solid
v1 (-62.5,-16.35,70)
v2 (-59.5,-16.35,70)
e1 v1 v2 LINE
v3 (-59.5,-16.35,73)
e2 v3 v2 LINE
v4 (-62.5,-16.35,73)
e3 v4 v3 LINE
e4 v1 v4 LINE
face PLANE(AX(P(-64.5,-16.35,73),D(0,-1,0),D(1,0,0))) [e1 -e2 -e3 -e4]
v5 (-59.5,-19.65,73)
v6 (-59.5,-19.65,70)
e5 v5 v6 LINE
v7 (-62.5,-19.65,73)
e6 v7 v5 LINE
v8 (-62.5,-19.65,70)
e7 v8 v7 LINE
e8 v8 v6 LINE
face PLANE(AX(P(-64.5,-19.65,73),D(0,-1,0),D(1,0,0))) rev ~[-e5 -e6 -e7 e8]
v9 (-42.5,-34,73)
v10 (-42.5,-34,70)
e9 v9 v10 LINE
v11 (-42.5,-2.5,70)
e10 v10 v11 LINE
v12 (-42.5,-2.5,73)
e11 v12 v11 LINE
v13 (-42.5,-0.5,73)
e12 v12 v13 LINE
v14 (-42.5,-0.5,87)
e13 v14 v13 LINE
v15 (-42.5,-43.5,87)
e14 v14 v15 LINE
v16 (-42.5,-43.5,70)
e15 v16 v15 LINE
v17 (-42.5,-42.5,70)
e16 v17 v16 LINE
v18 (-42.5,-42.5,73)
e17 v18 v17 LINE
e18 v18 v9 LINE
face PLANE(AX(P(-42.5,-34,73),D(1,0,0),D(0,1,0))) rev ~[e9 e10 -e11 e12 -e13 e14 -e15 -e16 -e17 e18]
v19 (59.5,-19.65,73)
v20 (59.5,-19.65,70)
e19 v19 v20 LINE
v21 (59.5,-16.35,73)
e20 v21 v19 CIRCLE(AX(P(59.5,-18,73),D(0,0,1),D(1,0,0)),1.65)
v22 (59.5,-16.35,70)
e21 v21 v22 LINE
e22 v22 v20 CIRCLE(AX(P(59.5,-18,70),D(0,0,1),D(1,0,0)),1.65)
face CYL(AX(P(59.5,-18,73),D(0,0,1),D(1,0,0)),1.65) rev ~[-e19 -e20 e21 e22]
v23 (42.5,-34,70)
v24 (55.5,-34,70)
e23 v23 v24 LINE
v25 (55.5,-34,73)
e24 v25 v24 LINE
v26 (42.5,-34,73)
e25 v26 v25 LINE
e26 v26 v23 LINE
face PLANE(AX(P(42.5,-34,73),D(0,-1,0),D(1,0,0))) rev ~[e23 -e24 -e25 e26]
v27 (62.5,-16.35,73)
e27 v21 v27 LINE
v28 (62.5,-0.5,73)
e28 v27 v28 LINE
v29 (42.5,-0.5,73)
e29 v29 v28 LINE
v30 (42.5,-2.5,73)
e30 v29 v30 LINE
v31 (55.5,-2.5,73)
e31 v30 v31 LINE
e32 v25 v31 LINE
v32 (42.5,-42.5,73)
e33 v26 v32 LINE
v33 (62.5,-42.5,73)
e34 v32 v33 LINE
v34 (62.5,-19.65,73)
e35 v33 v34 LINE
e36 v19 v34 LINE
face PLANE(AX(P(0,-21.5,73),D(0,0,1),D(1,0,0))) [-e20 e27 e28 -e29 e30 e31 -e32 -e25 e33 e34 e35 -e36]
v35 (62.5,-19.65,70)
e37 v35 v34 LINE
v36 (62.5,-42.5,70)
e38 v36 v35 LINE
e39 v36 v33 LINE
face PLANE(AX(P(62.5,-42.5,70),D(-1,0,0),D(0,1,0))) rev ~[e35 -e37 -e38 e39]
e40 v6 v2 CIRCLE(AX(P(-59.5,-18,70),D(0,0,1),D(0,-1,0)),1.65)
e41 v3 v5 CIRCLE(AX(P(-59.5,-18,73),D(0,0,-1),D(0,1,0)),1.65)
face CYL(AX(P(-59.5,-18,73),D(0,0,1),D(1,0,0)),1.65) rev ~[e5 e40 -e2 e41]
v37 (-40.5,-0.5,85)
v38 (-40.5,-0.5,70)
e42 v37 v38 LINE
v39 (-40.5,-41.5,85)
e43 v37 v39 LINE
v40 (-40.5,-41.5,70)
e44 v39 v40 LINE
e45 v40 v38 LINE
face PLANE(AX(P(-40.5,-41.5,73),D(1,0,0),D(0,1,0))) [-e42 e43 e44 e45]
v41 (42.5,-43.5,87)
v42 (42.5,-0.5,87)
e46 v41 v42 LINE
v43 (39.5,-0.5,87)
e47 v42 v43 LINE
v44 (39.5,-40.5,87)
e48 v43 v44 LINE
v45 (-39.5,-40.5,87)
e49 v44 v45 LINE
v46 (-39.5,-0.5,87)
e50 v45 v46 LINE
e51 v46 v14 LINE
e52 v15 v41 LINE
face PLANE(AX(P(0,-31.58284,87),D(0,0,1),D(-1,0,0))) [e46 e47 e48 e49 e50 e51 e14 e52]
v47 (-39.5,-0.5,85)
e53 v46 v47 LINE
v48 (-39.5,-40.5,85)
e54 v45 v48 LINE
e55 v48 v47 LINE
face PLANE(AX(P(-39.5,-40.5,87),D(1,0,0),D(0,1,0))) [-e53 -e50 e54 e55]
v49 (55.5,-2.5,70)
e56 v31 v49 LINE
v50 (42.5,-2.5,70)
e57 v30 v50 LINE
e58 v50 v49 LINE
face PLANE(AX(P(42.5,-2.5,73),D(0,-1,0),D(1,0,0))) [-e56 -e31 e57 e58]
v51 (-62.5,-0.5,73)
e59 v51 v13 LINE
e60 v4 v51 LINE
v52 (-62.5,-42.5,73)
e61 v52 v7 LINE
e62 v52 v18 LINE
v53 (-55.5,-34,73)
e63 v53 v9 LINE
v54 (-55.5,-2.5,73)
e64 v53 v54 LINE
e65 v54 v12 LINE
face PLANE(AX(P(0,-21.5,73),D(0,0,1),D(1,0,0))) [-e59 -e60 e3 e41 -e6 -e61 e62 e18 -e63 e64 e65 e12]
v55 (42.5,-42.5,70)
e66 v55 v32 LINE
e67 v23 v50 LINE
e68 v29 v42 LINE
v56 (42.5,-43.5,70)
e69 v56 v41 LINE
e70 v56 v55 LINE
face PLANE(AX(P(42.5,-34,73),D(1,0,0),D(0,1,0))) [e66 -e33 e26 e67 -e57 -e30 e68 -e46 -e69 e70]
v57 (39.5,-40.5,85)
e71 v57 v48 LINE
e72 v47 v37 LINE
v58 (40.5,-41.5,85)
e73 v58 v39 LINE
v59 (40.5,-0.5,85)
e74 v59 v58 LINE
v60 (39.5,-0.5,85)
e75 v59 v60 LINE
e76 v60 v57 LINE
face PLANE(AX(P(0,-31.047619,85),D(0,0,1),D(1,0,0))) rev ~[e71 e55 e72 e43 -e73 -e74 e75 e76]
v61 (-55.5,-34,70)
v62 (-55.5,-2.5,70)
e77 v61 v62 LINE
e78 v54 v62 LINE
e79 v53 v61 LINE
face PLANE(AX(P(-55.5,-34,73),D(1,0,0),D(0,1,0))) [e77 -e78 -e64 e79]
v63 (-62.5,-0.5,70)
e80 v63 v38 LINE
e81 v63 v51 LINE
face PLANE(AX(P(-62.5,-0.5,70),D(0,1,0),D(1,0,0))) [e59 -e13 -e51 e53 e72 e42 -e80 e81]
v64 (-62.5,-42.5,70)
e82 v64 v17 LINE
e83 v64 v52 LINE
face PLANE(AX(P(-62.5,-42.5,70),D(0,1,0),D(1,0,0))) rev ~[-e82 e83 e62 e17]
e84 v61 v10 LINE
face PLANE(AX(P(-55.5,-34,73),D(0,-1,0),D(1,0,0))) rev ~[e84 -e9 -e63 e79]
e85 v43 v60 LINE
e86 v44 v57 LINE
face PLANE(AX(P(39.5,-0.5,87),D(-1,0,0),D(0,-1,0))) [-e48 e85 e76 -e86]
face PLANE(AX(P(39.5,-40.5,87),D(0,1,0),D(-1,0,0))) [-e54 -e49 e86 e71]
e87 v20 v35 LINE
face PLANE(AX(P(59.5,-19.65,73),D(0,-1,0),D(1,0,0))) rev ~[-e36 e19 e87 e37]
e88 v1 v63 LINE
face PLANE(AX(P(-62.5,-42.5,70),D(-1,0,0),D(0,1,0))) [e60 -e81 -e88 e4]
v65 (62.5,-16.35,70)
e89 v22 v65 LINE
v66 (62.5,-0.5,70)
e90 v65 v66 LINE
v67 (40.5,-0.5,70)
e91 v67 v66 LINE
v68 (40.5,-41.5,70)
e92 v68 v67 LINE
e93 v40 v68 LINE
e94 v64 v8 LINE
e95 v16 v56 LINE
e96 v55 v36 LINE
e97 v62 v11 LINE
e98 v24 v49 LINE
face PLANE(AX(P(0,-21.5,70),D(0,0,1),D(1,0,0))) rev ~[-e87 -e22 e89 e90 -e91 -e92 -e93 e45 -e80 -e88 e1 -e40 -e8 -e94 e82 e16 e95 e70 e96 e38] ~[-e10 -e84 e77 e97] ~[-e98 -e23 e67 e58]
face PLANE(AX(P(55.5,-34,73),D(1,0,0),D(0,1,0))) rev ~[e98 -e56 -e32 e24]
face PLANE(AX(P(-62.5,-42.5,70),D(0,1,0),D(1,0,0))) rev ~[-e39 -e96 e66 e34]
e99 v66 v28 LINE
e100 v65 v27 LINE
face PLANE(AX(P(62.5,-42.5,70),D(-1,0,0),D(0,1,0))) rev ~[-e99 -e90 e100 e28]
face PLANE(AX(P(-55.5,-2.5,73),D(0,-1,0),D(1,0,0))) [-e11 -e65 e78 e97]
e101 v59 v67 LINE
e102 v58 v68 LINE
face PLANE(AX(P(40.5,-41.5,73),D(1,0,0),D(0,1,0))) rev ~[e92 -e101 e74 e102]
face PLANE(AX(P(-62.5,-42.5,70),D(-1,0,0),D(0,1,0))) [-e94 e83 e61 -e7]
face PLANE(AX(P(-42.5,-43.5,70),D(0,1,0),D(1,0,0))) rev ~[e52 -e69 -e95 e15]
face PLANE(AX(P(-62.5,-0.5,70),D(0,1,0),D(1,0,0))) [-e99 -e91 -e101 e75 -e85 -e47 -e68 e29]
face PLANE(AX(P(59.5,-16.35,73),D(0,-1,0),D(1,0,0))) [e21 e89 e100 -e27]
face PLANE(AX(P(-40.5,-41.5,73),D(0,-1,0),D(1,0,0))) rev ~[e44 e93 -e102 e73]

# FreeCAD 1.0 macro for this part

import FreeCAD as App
import Part
import Sketcher
Q = App.Units.Quantity

doc = App.newDocument("Part")
body = doc.addObject("PartDesign::Body", "Body")

# Sketch on XY plane
sketch1 = body.newObject("Sketcher::SketchObject", "Sketch")
sketch1.AttachmentSupport = (doc.getObject("XY_Plane"), [""])
sketch1.MapMode = "FlatFace"
sketch1.addGeometry([
    Part.LineSegment(App.Vector(-62.5, -0.5, 0), App.Vector(-62.5, -42.5, 0)),
    Part.LineSegment(App.Vector(-62.5, -42.5, 0), App.Vector(62.5, -42.5, 0)),
    Part.LineSegment(App.Vector(62.5, -42.5, 0), App.Vector(62.5, -0.5, 0)),
    Part.LineSegment(App.Vector(62.5, -0.5, 0), App.Vector(-62.5, -0.5, 0)),
], False)
sketch1.addConstraint([
    Sketcher.Constraint("Coincident", 0, 2, 1, 1),
    Sketcher.Constraint("Coincident", 1, 2, 2, 1),
    Sketcher.Constraint("Coincident", 2, 2, 3, 1),
    Sketcher.Constraint("Coincident", 3, 2, 0, 1),
    Sketcher.Constraint("Vertical", 0),
    Sketcher.Constraint("Horizontal", 1),
    Sketcher.Constraint("Vertical", 2),
    Sketcher.Constraint("Horizontal", 3),
    Sketcher.Constraint("DistanceX", 1, 1, 1, 2, Q("125 mm")),
    Sketcher.Constraint("DistanceY", 0, 2, 0, 1, Q("42 mm")),
    Sketcher.Constraint("DistanceX", 0, 2, -1, 1, Q("62.5 mm")),
    Sketcher.Constraint("DistanceY", 0, 2, -1, 1, Q("42.5 mm")),
])
pad1 = body.newObject("PartDesign::Pad", "Pad")
pad1.Profile = sketch1
pad1.Length = 3

# Sketch on XY plane
sketch2 = body.newObject("Sketcher::SketchObject", "Sketch001")
sketch2.AttachmentSupport = (doc.getObject("XY_Plane"), [""])
sketch2.MapMode = "FlatFace"
sketch2.AttachmentOffset = App.Placement(App.Vector(0, 0, 3), App.Rotation())
sketch2.addGeometry([
    Part.Circle(App.Vector(-59.5, -18, 0), App.Vector(0, 0, 1), 1.65),  # 0
    Part.Circle(App.Vector(59.5, -18, 0), App.Vector(0, 0, 1), 1.65),  # 1
    Part.LineSegment(App.Vector(-55.5, -2.5, 0), App.Vector(-55.5, -34, 0)),  # 2
    Part.LineSegment(App.Vector(-55.5, -34, 0), App.Vector(-42.5, -34, 0)),  # 3
    Part.LineSegment(App.Vector(-42.5, -34, 0), App.Vector(-42.5, -2.5, 0)),  # 4
    Part.LineSegment(App.Vector(-42.5, -2.5, 0), App.Vector(-55.5, -2.5, 0)),  # 5
    Part.LineSegment(App.Vector(42.5, -2.5, 0), App.Vector(42.5, -34, 0)),  # 6
    Part.LineSegment(App.Vector(42.5, -34, 0), App.Vector(55.5, -34, 0)),  # 7
    Part.LineSegment(App.Vector(55.5, -34, 0), App.Vector(55.5, -2.5, 0)),  # 8
    Part.LineSegment(App.Vector(55.5, -2.5, 0), App.Vector(42.5, -2.5, 0)),  # 9
], False)
sketch2.addConstraint([
    Sketcher.Constraint("Coincident", 2, 2, 3, 1),
    Sketcher.Constraint("Coincident", 3, 2, 4, 1),
    Sketcher.Constraint("Coincident", 4, 2, 5, 1),
    Sketcher.Constraint("Coincident", 5, 2, 2, 1),
    Sketcher.Constraint("Coincident", 6, 2, 7, 1),
    Sketcher.Constraint("Coincident", 7, 2, 8, 1),
    Sketcher.Constraint("Coincident", 8, 2, 9, 1),
    Sketcher.Constraint("Coincident", 9, 2, 6, 1),
    Sketcher.Constraint("Vertical", 2),
    Sketcher.Constraint("Horizontal", 3),
    Sketcher.Constraint("Vertical", 4),
    Sketcher.Constraint("Horizontal", 5),
    Sketcher.Constraint("Vertical", 6),
    Sketcher.Constraint("Horizontal", 7),
    Sketcher.Constraint("Vertical", 8),
    Sketcher.Constraint("Horizontal", 9),
    Sketcher.Constraint("Equal", 0, 1),
    Sketcher.Constraint("Symmetric", 0, 3, 1, 3, -2),
    Sketcher.Constraint("Symmetric", 3, 2, 6, 2, -2),
    Sketcher.Constraint("Symmetric", 5, 2, 8, 2, -2),
    Sketcher.Constraint("Diameter", 0, Q("3.3 mm")),
    Sketcher.Constraint("DistanceX", 3, 1, 3, 2, Q("13 mm")),
    Sketcher.Constraint("DistanceY", 2, 2, 2, 1, Q("31.5 mm")),
    Sketcher.Constraint("DistanceY", 0, 3, -1, 1, Q("18 mm")),
    Sketcher.Constraint("DistanceY", 2, 2, -1, 1, Q("34 mm")),
    Sketcher.Constraint("DistanceX", 0, 3, 1, 3, Q("119 mm")),
    Sketcher.Constraint("DistanceX", 0, 3, 2, 2, Q("4 mm")),
])
pocket1 = body.newObject("PartDesign::Pocket", "Pocket")
pocket1.Profile = sketch2
pocket1.Type = "ThroughAll"

# Sketch on XY plane
sketch3 = body.newObject("Sketcher::SketchObject", "Sketch002")
sketch3.AttachmentSupport = (doc.getObject("XY_Plane"), [""])
sketch3.MapMode = "FlatFace"
sketch3.AttachmentOffset = App.Placement(App.Vector(0, 0, 3), App.Rotation())
sketch3.addGeometry([
    Part.Circle(App.Vector(-59.5, -18, 0), App.Vector(0, 0, 1), 1.65),  # 0
    Part.Circle(App.Vector(59.5, -18, 0), App.Vector(0, 0, 1), 1.65),  # 1
    Part.LineSegment(App.Vector(-55.5, -2.5, 0), App.Vector(-55.5, -34, 0)),  # 2
    Part.LineSegment(App.Vector(-55.5, -34, 0), App.Vector(-42.5, -34, 0)),  # 3
    Part.LineSegment(App.Vector(-42.5, -34, 0), App.Vector(-42.5, -2.5, 0)),  # 4
    Part.LineSegment(App.Vector(-42.5, -2.5, 0), App.Vector(-55.5, -2.5, 0)),  # 5
    Part.LineSegment(App.Vector(42.5, -2.5, 0), App.Vector(42.5, -34, 0)),  # 6
    Part.LineSegment(App.Vector(42.5, -34, 0), App.Vector(55.5, -34, 0)),  # 7
    Part.LineSegment(App.Vector(55.5, -34, 0), App.Vector(55.5, -2.5, 0)),  # 8
    Part.LineSegment(App.Vector(55.5, -2.5, 0), App.Vector(42.5, -2.5, 0)),  # 9
], False)
sketch3.addConstraint([
    Sketcher.Constraint("Coincident", 2, 2, 3, 1),
    Sketcher.Constraint("Coincident", 3, 2, 4, 1),
    Sketcher.Constraint("Coincident", 4, 2, 5, 1),
    Sketcher.Constraint("Coincident", 5, 2, 2, 1),
    Sketcher.Constraint("Coincident", 6, 2, 7, 1),
    Sketcher.Constraint("Coincident", 7, 2, 8, 1),
    Sketcher.Constraint("Coincident", 8, 2, 9, 1),
    Sketcher.Constraint("Coincident", 9, 2, 6, 1),
    Sketcher.Constraint("Vertical", 2),
    Sketcher.Constraint("Horizontal", 3),
    Sketcher.Constraint("Vertical", 4),
    Sketcher.Constraint("Horizontal", 5),
    Sketcher.Constraint("Vertical", 6),
    Sketcher.Constraint("Horizontal", 7),
    Sketcher.Constraint("Vertical", 8),
    Sketcher.Constraint("Horizontal", 9),
    Sketcher.Constraint("Equal", 0, 1),
    Sketcher.Constraint("Symmetric", 0, 3, 1, 3, -2),
    Sketcher.Constraint("Symmetric", 3, 2, 6, 2, -2),
    Sketcher.Constraint("Symmetric", 5, 2, 8, 2, -2),
    Sketcher.Constraint("Diameter", 0, Q("3.3 mm")),
    Sketcher.Constraint("DistanceX", 3, 1, 3, 2, Q("13 mm")),
    Sketcher.Constraint("DistanceY", 2, 2, 2, 1, Q("31.5 mm")),
    Sketcher.Constraint("DistanceY", 0, 3, -1, 1, Q("18 mm")),
    Sketcher.Constraint("DistanceY", 2, 2, -1, 1, Q("34 mm")),
    Sketcher.Constraint("DistanceX", 0, 3, 1, 3, Q("119 mm")),
    Sketcher.Constraint("DistanceX", 0, 3, 2, 2, Q("4 mm")),
])
pocket2 = body.newObject("PartDesign::Pocket", "Pocket001")
pocket2.Profile = sketch3
pocket2.Type = "ThroughAll"

# Sketch on XY plane
sketch4 = body.newObject("Sketcher::SketchObject", "Sketch003")
sketch4.AttachmentSupport = (doc.getObject("XY_Plane"), [""])
sketch4.MapMode = "FlatFace"
sketch4.AttachmentOffset = App.Placement(App.Vector(0, 0, 3), App.Rotation())
sketch4.addGeometry([
    Part.LineSegment(App.Vector(-64.5, -16.35, 0), App.Vector(-64.5, -19.65, 0)),  # 0
    Part.LineSegment(App.Vector(-64.5, -19.65, 0), App.Vector(-59.5, -19.65, 0)),  # 1
    Part.LineSegment(App.Vector(-59.5, -19.65, 0), App.Vector(-59.5, -16.35, 0)),  # 2
    Part.LineSegment(App.Vector(-59.5, -16.35, 0), App.Vector(-64.5, -16.35, 0)),  # 3
    Part.LineSegment(App.Vector(59.5, -16.35, 0), App.Vector(59.5, -19.65, 0)),  # 4
    Part.LineSegment(App.Vector(59.5, -19.65, 0), App.Vector(64.5, -19.65, 0)),  # 5
    Part.LineSegment(App.Vector(64.5, -19.65, 0), App.Vector(64.5, -16.35, 0)),  # 6
    Part.LineSegment(App.Vector(64.5, -16.35, 0), App.Vector(59.5, -16.35, 0)),  # 7
    Part.LineSegment(App.Vector(-40.5, -0.5, 0), App.Vector(-40.5, -41.5, 0)),  # 8
    Part.LineSegment(App.Vector(-40.5, -41.5, 0), App.Vector(40.5, -41.5, 0)),  # 9
    Part.LineSegment(App.Vector(40.5, -41.5, 0), App.Vector(40.5, -0.5, 0)),  # 10
    Part.LineSegment(App.Vector(40.5, -0.5, 0), App.Vector(-40.5, -0.5, 0)),  # 11
], False)
sketch4.addConstraint([
    Sketcher.Constraint("Coincident", 0, 2, 1, 1),
    Sketcher.Constraint("Coincident", 1, 2, 2, 1),
    Sketcher.Constraint("Coincident", 2, 2, 3, 1),
    Sketcher.Constraint("Coincident", 3, 2, 0, 1),
    Sketcher.Constraint("Coincident", 4, 2, 5, 1),
    Sketcher.Constraint("Coincident", 5, 2, 6, 1),
    Sketcher.Constraint("Coincident", 6, 2, 7, 1),
    Sketcher.Constraint("Coincident", 7, 2, 4, 1),
    Sketcher.Constraint("Coincident", 8, 2, 9, 1),
    Sketcher.Constraint("Coincident", 9, 2, 10, 1),
    Sketcher.Constraint("Coincident", 10, 2, 11, 1),
    Sketcher.Constraint("Coincident", 11, 2, 8, 1),
    Sketcher.Constraint("Vertical", 0),
    Sketcher.Constraint("Horizontal", 1),
    Sketcher.Constraint("Vertical", 2),
    Sketcher.Constraint("Horizontal", 3),
    Sketcher.Constraint("Vertical", 4),
    Sketcher.Constraint("Horizontal", 5),
    Sketcher.Constraint("Vertical", 6),
    Sketcher.Constraint("Horizontal", 7),
    Sketcher.Constraint("Vertical", 8),
    Sketcher.Constraint("Horizontal", 9),
    Sketcher.Constraint("Vertical", 10),
    Sketcher.Constraint("Horizontal", 11),
    Sketcher.Constraint("Symmetric", 1, 2, 4, 2, -2),
    Sketcher.Constraint("Symmetric", 3, 2, 6, 2, -2),
    Sketcher.Constraint("DistanceX", 1, 1, 1, 2, Q("5 mm")),
    Sketcher.Constraint("DistanceX", 9, 1, 9, 2, Q("81 mm")),
    Sketcher.Constraint("DistanceY", 8, 2, 8, 1, Q("41 mm")),
    Sketcher.Constraint("DistanceY", 0, 2, 0, 1, Q("3.3 mm")),
    Sketcher.Constraint("DistanceX", 1, 2, 4, 2, Q("119 mm")),
    Sketcher.Constraint("DistanceX", 1, 2, 8, 2, Q("19 mm")),
    Sketcher.Constraint("DistanceY", 8, 2, -1, 1, Q("41.5 mm")),
    Sketcher.Constraint("DistanceY", 0, 2, -1, 1, Q("19.65 mm")),
])
pocket3 = body.newObject("PartDesign::Pocket", "Pocket002")
pocket3.Profile = sketch4
pocket3.Type = "ThroughAll"

# Sketch on XY plane
sketch5 = body.newObject("Sketcher::SketchObject", "Sketch004")
sketch5.AttachmentSupport = (doc.getObject("XY_Plane"), [""])
sketch5.MapMode = "FlatFace"
sketch5.addGeometry([
    Part.LineSegment(App.Vector(-42.5, -43.5, 0), App.Vector(-42.5, -0.5, 0)),  # 0
    Part.LineSegment(App.Vector(-42.5, -0.5, 0), App.Vector(-40.5, -0.5, 0)),  # 1
    Part.LineSegment(App.Vector(-40.5, -0.5, 0), App.Vector(-40.5, -41.5, 0)),  # 2
    Part.LineSegment(App.Vector(-40.5, -41.5, 0), App.Vector(40.5, -41.5, 0)),  # 3
    Part.LineSegment(App.Vector(40.5, -41.5, 0), App.Vector(40.5, -0.5, 0)),  # 4
    Part.LineSegment(App.Vector(40.5, -0.5, 0), App.Vector(42.5, -0.5, 0)),  # 5
    Part.LineSegment(App.Vector(42.5, -0.5, 0), App.Vector(42.5, -43.5, 0)),  # 6
    Part.LineSegment(App.Vector(42.5, -43.5, 0), App.Vector(-42.5, -43.5, 0)),  # 7
], False)
sketch5.addConstraint([
    Sketcher.Constraint("Coincident", 0, 2, 1, 1),
    Sketcher.Constraint("Coincident", 1, 2, 2, 1),
    Sketcher.Constraint("Coincident", 2, 2, 3, 1),
    Sketcher.Constraint("Coincident", 3, 2, 4, 1),
    Sketcher.Constraint("Coincident", 4, 2, 5, 1),
    Sketcher.Constraint("Coincident", 5, 2, 6, 1),
    Sketcher.Constraint("Coincident", 6, 2, 7, 1),
    Sketcher.Constraint("Coincident", 7, 2, 0, 1),
    Sketcher.Constraint("Vertical", 0),
    Sketcher.Constraint("Horizontal", 1),
    Sketcher.Constraint("Vertical", 2),
    Sketcher.Constraint("Horizontal", 3),
    Sketcher.Constraint("Vertical", 4),
    Sketcher.Constraint("Horizontal", 5),
    Sketcher.Constraint("Vertical", 6),
    Sketcher.Constraint("Horizontal", 7),
    Sketcher.Constraint("Symmetric", 1, 2, 4, 2, -2),
    Sketcher.Constraint("Equal", 1, 5),
    Sketcher.Constraint("DistanceX", 1, 1, 1, 2, Q("2 mm")),
    Sketcher.Constraint("DistanceX", 3, 1, 3, 2, Q("81 mm")),
    Sketcher.Constraint("DistanceY", 0, 1, 0, 2, Q("43 mm")),
    Sketcher.Constraint("DistanceY", 2, 2, 2, 1, Q("41 mm")),
    Sketcher.Constraint("DistanceY", 0, 2, -1, 1, Q("0.5 mm")),
])
pad2 = body.newObject("PartDesign::Pad", "Pad001")
pad2.Profile = sketch5
pad2.Length = 17

# Sketch on XY plane
sketch6 = body.newObject("Sketcher::SketchObject", "Sketch005")
sketch6.AttachmentSupport = (doc.getObject("XY_Plane"), [""])
sketch6.MapMode = "FlatFace"
sketch6.AttachmentOffset = App.Placement(App.Vector(0, 0, 17), App.Rotation())
sketch6.addGeometry([
    Part.LineSegment(App.Vector(-42.5, -0.5, 0), App.Vector(-42.5, -43.5, 0)),  # 0
    Part.LineSegment(App.Vector(-42.5, -43.5, 0), App.Vector(42.5, -43.5, 0)),  # 1
    Part.LineSegment(App.Vector(42.5, -43.5, 0), App.Vector(42.5, -0.5, 0)),  # 2
    Part.LineSegment(App.Vector(42.5, -0.5, 0), App.Vector(39.5, -0.5, 0)),  # 3
    Part.LineSegment(App.Vector(39.5, -0.5, 0), App.Vector(39.5, -40.5, 0)),  # 4
    Part.LineSegment(App.Vector(39.5, -40.5, 0), App.Vector(-39.5, -40.5, 0)),  # 5
    Part.LineSegment(App.Vector(-39.5, -40.5, 0), App.Vector(-39.5, -0.5, 0)),  # 6
    Part.LineSegment(App.Vector(-39.5, -0.5, 0), App.Vector(-42.5, -0.5, 0)),  # 7
], False)
sketch6.addConstraint([
    Sketcher.Constraint("Coincident", 0, 2, 1, 1),
    Sketcher.Constraint("Coincident", 1, 2, 2, 1),
    Sketcher.Constraint("Coincident", 2, 2, 3, 1),
    Sketcher.Constraint("Coincident", 3, 2, 4, 1),
    Sketcher.Constraint("Coincident", 4, 2, 5, 1),
    Sketcher.Constraint("Coincident", 5, 2, 6, 1),
    Sketcher.Constraint("Coincident", 6, 2, 7, 1),
    Sketcher.Constraint("Coincident", 7, 2, 0, 1),
    Sketcher.Constraint("Vertical", 0),
    Sketcher.Constraint("Horizontal", 1),
    Sketcher.Constraint("Vertical", 2),
    Sketcher.Constraint("Horizontal", 3),
    Sketcher.Constraint("Vertical", 4),
    Sketcher.Constraint("Horizontal", 5),
    Sketcher.Constraint("Vertical", 6),
    Sketcher.Constraint("Horizontal", 7),
    Sketcher.Constraint("Symmetric", 3, 2, 6, 2, -2),
    Sketcher.Constraint("Equal", 3, 7),
    Sketcher.Constraint("DistanceX", 1, 1, 1, 2, Q("85 mm")),
    Sketcher.Constraint("DistanceX", 3, 2, 3, 1, Q("3 mm")),
    Sketcher.Constraint("DistanceY", 0, 2, 0, 1, Q("43 mm")),
    Sketcher.Constraint("DistanceY", 4, 2, 4, 1, Q("40 mm")),
    Sketcher.Constraint("DistanceY", 0, 2, -1, 1, Q("43.5 mm")),
])
pad3 = body.newObject("PartDesign::Pad", "Pad002")
pad3.Profile = sketch6
pad3.Length = 2
pad3.Reversed = True
body2 = doc.addObject("PartDesign::Body", "Body001")
doc.recompute()

body.Placement = App.Placement(App.Vector(0, 0, 70), App.Rotation(App.Vector(0, 0, 1), 0))
boolean = body2.newObject("PartDesign::Boolean", "Boolean")
boolean.Type = "Fuse"
boolean.addObjects([body])

doc.recompute()
